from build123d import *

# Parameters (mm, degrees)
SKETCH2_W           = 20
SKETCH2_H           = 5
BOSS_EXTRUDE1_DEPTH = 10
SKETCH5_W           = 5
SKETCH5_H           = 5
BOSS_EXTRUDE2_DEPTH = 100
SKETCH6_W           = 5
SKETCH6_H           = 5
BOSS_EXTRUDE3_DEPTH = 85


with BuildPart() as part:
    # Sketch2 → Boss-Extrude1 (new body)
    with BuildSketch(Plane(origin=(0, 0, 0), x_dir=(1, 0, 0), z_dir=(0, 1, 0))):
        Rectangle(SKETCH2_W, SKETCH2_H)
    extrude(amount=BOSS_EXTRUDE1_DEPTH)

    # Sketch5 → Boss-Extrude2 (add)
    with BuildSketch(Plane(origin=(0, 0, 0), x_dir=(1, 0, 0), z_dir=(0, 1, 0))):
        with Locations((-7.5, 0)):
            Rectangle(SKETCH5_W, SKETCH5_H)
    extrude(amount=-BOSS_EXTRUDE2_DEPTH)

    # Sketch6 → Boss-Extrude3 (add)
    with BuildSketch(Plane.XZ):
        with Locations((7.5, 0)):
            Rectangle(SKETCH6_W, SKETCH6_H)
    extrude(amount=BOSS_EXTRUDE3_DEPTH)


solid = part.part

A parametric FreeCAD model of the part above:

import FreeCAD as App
import Part
import Sketcher
Q = App.Units.Quantity


def add_polygon(sketch, points):
    """Adds a closed chain of lines whose ends are joined by coincident constraints."""
    first, n = sketch.GeometryCount, len(points)
    for a, b in zip(points, points[1:] + points[:1]):
        sketch.addGeometry(Part.LineSegment(App.Vector(*a, 0), App.Vector(*b, 0)), False)
    for i in range(n):
        sketch.addConstraint(Sketcher.Constraint("Coincident", first + i, 2, first + (i + 1) % n, 1))

doc = App.newDocument("Part")
body = doc.addObject("PartDesign::Body", "Body")

# Sketch on XZ plane
sketch1 = body.newObject("Sketcher::SketchObject", "Sketch")
sketch1.AttachmentSupport = (doc.getObject("XZ_Plane"), [""])
sketch1.MapMode = "FlatFace"
add_polygon(sketch1, [(-10, -2), (-10, 2), (10, 2), (10, -2)])  # lines 0-3
sketch1.addConstraint(Sketcher.Constraint("Vertical", 0))
sketch1.addConstraint(Sketcher.Constraint("Horizontal", 1))
sketch1.addConstraint(Sketcher.Constraint("Vertical", 2))
sketch1.addConstraint(Sketcher.Constraint("Horizontal", 3))
sketch1.addConstraint(Sketcher.Constraint("Symmetric", 0, 2, 2, 2, -1, 1))
sketch1.addConstraint(Sketcher.Constraint("DistanceX", 1, 1, 1, 2, Q("20 mm")))
sketch1.addConstraint(Sketcher.Constraint("DistanceY", 0, 1, 0, 2, Q("5 mm")))
pad1 = body.newObject("PartDesign::Pad", "Pad")
pad1.Profile = sketch1
pad1.Length = 10
pad1.Reversed = True

# Sketch on XZ plane
sketch2 = body.newObject("Sketcher::SketchObject", "Sketch001")
sketch2.AttachmentSupport = (doc.getObject("XZ_Plane"), [""])
sketch2.MapMode = "FlatFace"
add_polygon(sketch2, [(-10, -2), (-10, 2), (-5, 2), (-5, -2)])  # lines 0-3
sketch2.addConstraint(Sketcher.Constraint("Vertical", 0))
sketch2.addConstraint(Sketcher.Constraint("Horizontal", 1))
sketch2.addConstraint(Sketcher.Constraint("Vertical", 2))
sketch2.addConstraint(Sketcher.Constraint("Horizontal", 3))
sketch2.addConstraint(Sketcher.Constraint("Equal", 3, 0))
sketch2.addConstraint(Sketcher.Constraint("DistanceX", 1, 1, 1, 2, Q("5 mm")))
sketch2.addConstraint(Sketcher.Constraint("DistanceX", 0, 2, -1, 1, Q("10 mm")))
sketch2.addConstraint(Sketcher.Constraint("DistanceY", -1, 1, 0, 2, Q("2.5 mm")))
pad2 = body.newObject("PartDesign::Pad", "Pad001")
pad2.Profile = sketch2
pad2.Length = 100

# Sketch on XZ plane
sketch3 = body.newObject("Sketcher::SketchObject", "Sketch002")
sketch3.AttachmentSupport = (doc.getObject("XZ_Plane"), [""])
sketch3.MapMode = "FlatFace"
add_polygon(sketch3, [(5, 2), (5, -2), (10, -2), (10, 2)])  # lines 0-3
sketch3.addConstraint(Sketcher.Constraint("Vertical", 0))
sketch3.addConstraint(Sketcher.Constraint("Horizontal", 1))
sketch3.addConstraint(Sketcher.Constraint("Vertical", 2))
sketch3.addConstraint(Sketcher.Constraint("Horizontal", 3))
sketch3.addConstraint(Sketcher.Constraint("Equal", 3, 0))
sketch3.addConstraint(Sketcher.Constraint("DistanceX", 1, 1, 1, 2, Q("5 mm")))
sketch3.addConstraint(Sketcher.Constraint("DistanceX", -1, 1, 0, 2, Q("5 mm")))
sketch3.addConstraint(Sketcher.Constraint("DistanceY", 0, 2, -1, 1, Q("2.5 mm")))
pad3 = body.newObject("PartDesign::Pad", "Pad002")
pad3.Profile = sketch3
pad3.Length = 85

doc.recompute()
